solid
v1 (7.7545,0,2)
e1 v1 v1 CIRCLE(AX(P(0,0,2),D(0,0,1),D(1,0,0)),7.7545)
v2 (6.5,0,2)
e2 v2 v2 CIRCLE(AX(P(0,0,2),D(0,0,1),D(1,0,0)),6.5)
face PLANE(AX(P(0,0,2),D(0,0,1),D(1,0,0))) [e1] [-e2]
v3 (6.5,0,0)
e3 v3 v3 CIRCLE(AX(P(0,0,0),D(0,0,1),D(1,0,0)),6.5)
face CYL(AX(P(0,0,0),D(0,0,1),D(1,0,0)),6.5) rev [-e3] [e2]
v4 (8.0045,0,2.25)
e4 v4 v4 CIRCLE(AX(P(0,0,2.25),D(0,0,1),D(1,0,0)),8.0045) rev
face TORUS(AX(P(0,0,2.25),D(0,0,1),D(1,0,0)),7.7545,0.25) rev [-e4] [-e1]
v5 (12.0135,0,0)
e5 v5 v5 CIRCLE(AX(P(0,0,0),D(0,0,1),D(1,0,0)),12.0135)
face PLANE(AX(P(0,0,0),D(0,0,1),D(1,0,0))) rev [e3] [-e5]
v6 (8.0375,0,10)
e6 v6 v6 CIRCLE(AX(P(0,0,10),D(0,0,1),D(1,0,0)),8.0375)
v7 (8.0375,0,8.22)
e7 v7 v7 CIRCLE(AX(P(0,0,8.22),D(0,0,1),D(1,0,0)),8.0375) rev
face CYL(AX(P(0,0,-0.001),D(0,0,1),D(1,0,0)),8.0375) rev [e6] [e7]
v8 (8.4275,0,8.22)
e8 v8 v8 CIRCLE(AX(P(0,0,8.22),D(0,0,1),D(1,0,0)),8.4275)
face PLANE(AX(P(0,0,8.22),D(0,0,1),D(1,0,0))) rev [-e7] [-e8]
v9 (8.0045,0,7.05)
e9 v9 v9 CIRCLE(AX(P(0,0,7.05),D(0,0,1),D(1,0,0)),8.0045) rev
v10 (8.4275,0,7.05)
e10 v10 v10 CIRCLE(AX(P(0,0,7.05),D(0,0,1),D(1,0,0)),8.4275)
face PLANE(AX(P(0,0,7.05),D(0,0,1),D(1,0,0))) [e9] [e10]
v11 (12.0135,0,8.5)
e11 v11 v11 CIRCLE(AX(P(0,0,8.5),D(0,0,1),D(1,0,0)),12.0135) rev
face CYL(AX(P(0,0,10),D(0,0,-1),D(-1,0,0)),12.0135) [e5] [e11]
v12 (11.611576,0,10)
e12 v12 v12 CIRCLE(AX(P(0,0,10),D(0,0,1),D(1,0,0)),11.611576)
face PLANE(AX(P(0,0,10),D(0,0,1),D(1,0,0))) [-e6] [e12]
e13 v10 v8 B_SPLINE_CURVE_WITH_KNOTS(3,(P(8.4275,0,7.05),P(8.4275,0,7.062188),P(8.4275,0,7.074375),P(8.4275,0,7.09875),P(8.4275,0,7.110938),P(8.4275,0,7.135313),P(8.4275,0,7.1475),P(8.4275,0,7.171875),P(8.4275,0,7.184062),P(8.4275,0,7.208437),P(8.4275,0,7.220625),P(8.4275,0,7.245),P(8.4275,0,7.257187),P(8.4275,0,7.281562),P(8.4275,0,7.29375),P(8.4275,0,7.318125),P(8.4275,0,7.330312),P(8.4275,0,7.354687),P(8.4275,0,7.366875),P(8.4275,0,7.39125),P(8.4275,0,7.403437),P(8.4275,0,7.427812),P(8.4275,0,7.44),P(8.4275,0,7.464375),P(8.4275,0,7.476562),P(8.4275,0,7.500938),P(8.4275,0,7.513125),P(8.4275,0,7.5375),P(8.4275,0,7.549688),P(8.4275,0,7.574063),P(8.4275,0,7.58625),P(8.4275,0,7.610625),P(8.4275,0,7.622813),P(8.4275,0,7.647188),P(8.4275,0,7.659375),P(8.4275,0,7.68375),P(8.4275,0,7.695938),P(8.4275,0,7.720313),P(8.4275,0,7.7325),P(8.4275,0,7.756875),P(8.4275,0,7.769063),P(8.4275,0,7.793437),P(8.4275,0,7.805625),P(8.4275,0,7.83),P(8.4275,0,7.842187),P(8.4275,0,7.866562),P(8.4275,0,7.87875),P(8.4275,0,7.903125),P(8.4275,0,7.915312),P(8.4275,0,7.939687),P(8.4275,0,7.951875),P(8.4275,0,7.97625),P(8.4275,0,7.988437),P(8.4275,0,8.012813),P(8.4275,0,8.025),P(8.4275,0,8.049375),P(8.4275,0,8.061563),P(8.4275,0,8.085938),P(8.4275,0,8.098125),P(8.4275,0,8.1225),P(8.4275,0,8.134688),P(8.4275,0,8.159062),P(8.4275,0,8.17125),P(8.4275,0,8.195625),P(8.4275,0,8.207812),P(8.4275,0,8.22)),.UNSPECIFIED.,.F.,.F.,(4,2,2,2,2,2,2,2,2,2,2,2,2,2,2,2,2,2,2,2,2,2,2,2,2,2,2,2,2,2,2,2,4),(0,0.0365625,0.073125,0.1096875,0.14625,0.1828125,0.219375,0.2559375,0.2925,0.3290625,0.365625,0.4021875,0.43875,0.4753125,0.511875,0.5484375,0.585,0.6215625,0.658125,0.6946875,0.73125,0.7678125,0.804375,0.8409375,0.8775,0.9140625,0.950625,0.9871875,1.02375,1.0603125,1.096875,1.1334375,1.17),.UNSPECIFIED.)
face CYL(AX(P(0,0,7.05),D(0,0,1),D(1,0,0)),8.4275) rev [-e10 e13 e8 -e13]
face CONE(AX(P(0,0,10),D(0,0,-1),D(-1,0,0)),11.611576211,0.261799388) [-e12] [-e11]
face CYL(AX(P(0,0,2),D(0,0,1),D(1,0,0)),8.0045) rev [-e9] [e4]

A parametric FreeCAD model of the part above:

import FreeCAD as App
import Part
import Sketcher
from FreeCAD import Vector
Q = App.Units.Quantity


def edges_at(feature, points):
    """Names of the edges that pass closest to the given points."""
    edges = feature.Shape.Edges
    near = lambda p: min(range(len(edges)), key=lambda i: edges[i].distToShape(Part.Vertex(*p))[0])
    return sorted({f"Edge{near(p) + 1}" for p in points})

doc = App.newDocument("Part")
body = doc.addObject("PartDesign::Body", "Body")

sketch1 = body.newObject("Sketcher::SketchObject", "Sketch")
sketch1.AttachmentSupport = (doc.getObject("XY_Plane"), [""])
sketch1.MapMode = "FlatFace"
sketch1.addGeometry(Part.Circle(Vector(0, 0, 0), Vector(0, 0, 1), 12.0135), False)
sketch1.addConstraint(Sketcher.Constraint("Coincident", 0, 3, -1, 1))
sketch1.addConstraint(Sketcher.Constraint("Diameter", 0, Q("24.027 mm")))
pad1 = body.newObject("PartDesign::Pad", "Pad")
pad1.Profile = sketch1
pad1.Length = 10

sketch2 = body.newObject("Sketcher::SketchObject", "Sketch001")
sketch2.AttachmentSupport = (doc.getObject("XY_Plane"), [""])
sketch2.MapMode = "FlatFace"
sketch2.AttachmentOffset = App.Placement(Vector(0, 0, 10), App.Rotation())
sketch2.addGeometry(Part.Circle(Vector(0, 0, 0), Vector(0, 0, 1), 8.0045), False)
sketch2.addConstraint(Sketcher.Constraint("Coincident", 0, 3, -1, 1))
sketch2.addConstraint(Sketcher.Constraint("Diameter", 0, Q("16.009 mm")))
pocket1 = body.newObject("PartDesign::Pocket", "Pocket")
pocket1.Profile = sketch2
pocket1.Length = 8

sketch3 = body.newObject("Sketcher::SketchObject", "Sketch002")
sketch3.AttachmentSupport = (doc.getObject("XY_Plane"), [""])
sketch3.MapMode = "FlatFace"
sketch3.AttachmentOffset = App.Placement(Vector(0, 0, 2), App.Rotation())
sketch3.addGeometry(Part.Circle(Vector(0, 0, 0), Vector(0, 0, 1), 6.5), False)
sketch3.addConstraint(Sketcher.Constraint("Coincident", 0, 3, -1, 1))
sketch3.addConstraint(Sketcher.Constraint("Diameter", 0, Q("13 mm")))
pocket2 = body.newObject("PartDesign::Pocket", "Pocket001")
pocket2.Profile = sketch3
pocket2.Type = "ThroughAll"
doc.recompute()

fillet = body.newObject("PartDesign::Fillet", "Fillet")
fillet.Base = (pocket2, edges_at(pocket2, [(-8.005, 0, 2)]))
fillet.Radius = 0.25

sketch4 = body.newObject("Sketcher::SketchObject", "Sketch003")
sketch4.AttachmentSupport = (doc.getObject("XY_Plane"), [""])
sketch4.MapMode = "FlatFace"
sketch4.AttachmentOffset = App.Placement(Vector(0, 0, 8.22), App.Rotation())
sketch4.addGeometry(Part.Circle(Vector(0, 0, 0), Vector(0, 0, 1), 8.4275), False)
sketch4.addConstraint(Sketcher.Constraint("Coincident", 0, 3, -1, 1))
sketch4.addConstraint(Sketcher.Constraint("Diameter", 0, Q("16.855 mm")))
pocket3 = body.newObject("PartDesign::Pocket", "Pocket002")
pocket3.Profile = sketch4
pocket3.Length = 1.17

sketch5 = body.newObject("Sketcher::SketchObject", "Sketch004")
sketch5.AttachmentSupport = (doc.getObject("XY_Plane"), [""])
sketch5.MapMode = "FlatFace"
sketch5.AttachmentOffset = App.Placement(Vector(0, 0, 10), App.Rotation())
sketch5.addGeometry(Part.Circle(Vector(0, 0, 0), Vector(0, 0, 1), 8.0375), False)
sketch5.addConstraint(Sketcher.Constraint("Coincident", 0, 3, -1, 1))
sketch5.addConstraint(Sketcher.Constraint("Diameter", 0, Q("16.075 mm")))
pocket4 = body.newObject("PartDesign::Pocket", "Pocket003")
pocket4.Profile = sketch5
pocket4.Length = 1.78
doc.recompute()

chamfer = body.newObject("PartDesign::Chamfer", "Chamfer")
chamfer.Base = (pocket4, edges_at(pocket4, [(-12.014, 0, 10)]))
chamfer.ChamferType = "Two distances"
chamfer.Size = 1.5
chamfer.Size2 = 0.401924
chamfer.FlipDirection = True

doc.recompute()
